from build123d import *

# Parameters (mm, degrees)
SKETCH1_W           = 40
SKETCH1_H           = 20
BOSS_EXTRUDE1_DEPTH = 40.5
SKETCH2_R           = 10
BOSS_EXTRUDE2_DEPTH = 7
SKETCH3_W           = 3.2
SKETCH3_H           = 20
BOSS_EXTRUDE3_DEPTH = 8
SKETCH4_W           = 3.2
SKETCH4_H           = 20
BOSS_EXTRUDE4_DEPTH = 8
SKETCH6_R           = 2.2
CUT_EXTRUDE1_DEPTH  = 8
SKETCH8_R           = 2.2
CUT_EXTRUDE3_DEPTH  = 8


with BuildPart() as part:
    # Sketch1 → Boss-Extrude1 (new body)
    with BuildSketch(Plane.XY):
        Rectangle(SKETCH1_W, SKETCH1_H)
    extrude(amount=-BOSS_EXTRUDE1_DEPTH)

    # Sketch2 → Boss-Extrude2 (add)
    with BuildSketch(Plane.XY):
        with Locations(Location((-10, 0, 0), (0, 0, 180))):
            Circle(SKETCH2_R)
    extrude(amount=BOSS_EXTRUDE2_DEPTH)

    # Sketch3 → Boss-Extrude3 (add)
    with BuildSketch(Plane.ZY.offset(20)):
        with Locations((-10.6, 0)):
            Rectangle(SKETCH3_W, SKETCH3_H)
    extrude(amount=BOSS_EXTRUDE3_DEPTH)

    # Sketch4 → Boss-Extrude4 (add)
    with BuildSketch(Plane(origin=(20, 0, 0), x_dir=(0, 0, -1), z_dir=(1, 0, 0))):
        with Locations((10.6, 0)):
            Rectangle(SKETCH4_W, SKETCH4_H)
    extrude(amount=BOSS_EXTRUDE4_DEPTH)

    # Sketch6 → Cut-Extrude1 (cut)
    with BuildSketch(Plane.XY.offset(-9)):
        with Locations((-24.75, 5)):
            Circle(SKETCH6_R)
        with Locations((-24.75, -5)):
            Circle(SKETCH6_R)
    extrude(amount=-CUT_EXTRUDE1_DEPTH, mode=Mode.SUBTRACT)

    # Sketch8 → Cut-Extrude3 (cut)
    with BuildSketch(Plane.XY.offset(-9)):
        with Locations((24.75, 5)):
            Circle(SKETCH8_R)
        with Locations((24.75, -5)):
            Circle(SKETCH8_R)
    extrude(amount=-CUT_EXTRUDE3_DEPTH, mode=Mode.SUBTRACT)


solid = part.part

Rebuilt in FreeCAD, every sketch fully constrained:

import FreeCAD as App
import Part
import Sketcher
from FreeCAD import Vector
Q = App.Units.Quantity


def add_polygon(sketch, points):
    """Adds a closed chain of lines whose ends are joined by coincident constraints."""
    first, n = sketch.GeometryCount, len(points)
    for a, b in zip(points, points[1:] + points[:1]):
        sketch.addGeometry(Part.LineSegment(App.Vector(*a, 0), App.Vector(*b, 0)), False)
    for i in range(n):
        sketch.addConstraint(Sketcher.Constraint("Coincident", first + i, 2, first + (i + 1) % n, 1))

doc = App.newDocument("Part")
body = doc.addObject("PartDesign::Body", "Body")

sketch1 = body.newObject("Sketcher::SketchObject", "Sketch")
sketch1.AttachmentSupport = (doc.getObject("XY_Plane"), [""])
sketch1.MapMode = "FlatFace"
add_polygon(sketch1, [(-20, 10), (-20, -10), (20, -10), (20, 10)])
sketch1.addConstraint(Sketcher.Constraint("Vertical", 0))
sketch1.addConstraint(Sketcher.Constraint("Horizontal", 1))
sketch1.addConstraint(Sketcher.Constraint("Vertical", 2))
sketch1.addConstraint(Sketcher.Constraint("Horizontal", 3))
sketch1.addConstraint(Sketcher.Constraint("Symmetric", 0, 2, 2, 2, -1, 1))
sketch1.addConstraint(Sketcher.Constraint("DistanceX", 1, 1, 1, 2, Q("40 mm")))
sketch1.addConstraint(Sketcher.Constraint("DistanceY", 0, 2, 0, 1, Q("20 mm")))
pad1 = body.newObject("PartDesign::Pad", "Pad")
pad1.Profile = sketch1
pad1.Length = 40.5
pad1.Reversed = True

sketch2 = body.newObject("Sketcher::SketchObject", "Sketch001")
sketch2.AttachmentSupport = (doc.getObject("XY_Plane"), [""])
sketch2.MapMode = "FlatFace"
sketch2.addGeometry(Part.Circle(Vector(-10, 0, 0), Vector(0, 0, 1), 10), False)
sketch2.addConstraint(Sketcher.Constraint("PointOnObject", 0, 3, -1))
sketch2.addConstraint(Sketcher.Constraint("Diameter", 0, Q("20 mm")))
sketch2.addConstraint(Sketcher.Constraint("DistanceX", 0, 3, -1, 1, Q("10 mm")))
pad2 = body.newObject("PartDesign::Pad", "Pad001")
pad2.Profile = sketch2
pad2.Length = 7

sketch3 = body.newObject("Sketcher::SketchObject", "Sketch002")
sketch3.AttachmentSupport = (doc.getObject("YZ_Plane"), [""])
sketch3.MapMode = "FlatFace"
sketch3.AttachmentOffset = App.Placement(Vector(0, 0, -20), App.Rotation())
add_polygon(sketch3, [(10, -12.2), (-10, -12.2), (-10, -9), (10, -9)])
sketch3.addConstraint(Sketcher.Constraint("Horizontal", 0))
sketch3.addConstraint(Sketcher.Constraint("Vertical", 1))
sketch3.addConstraint(Sketcher.Constraint("Horizontal", 2))
sketch3.addConstraint(Sketcher.Constraint("Vertical", 3))
sketch3.addConstraint(Sketcher.Constraint("DistanceX", 0, 2, 0, 1, Q("20 mm")))
sketch3.addConstraint(Sketcher.Constraint("DistanceY", 1, 1, 1, 2, Q("3.2 mm")))
sketch3.addConstraint(Sketcher.Constraint("DistanceX", 0, 2, -1, 1, Q("10 mm")))
sketch3.addConstraint(Sketcher.Constraint("DistanceY", 1, 2, -1, 1, Q("9 mm")))
pad3 = body.newObject("PartDesign::Pad", "Pad002")
pad3.Profile = sketch3
pad3.Length = 8
pad3.Reversed = True

sketch4 = body.newObject("Sketcher::SketchObject", "Sketch003")
sketch4.AttachmentSupport = (doc.getObject("YZ_Plane"), [""])
sketch4.MapMode = "FlatFace"
sketch4.AttachmentOffset = App.Placement(Vector(0, 0, 20), App.Rotation())
add_polygon(sketch4, [(10, -9), (-10, -9), (-10, -12.2), (10, -12.2)])
sketch4.addConstraint(Sketcher.Constraint("Horizontal", 0))
sketch4.addConstraint(Sketcher.Constraint("Vertical", 1))
sketch4.addConstraint(Sketcher.Constraint("Horizontal", 2))
sketch4.addConstraint(Sketcher.Constraint("Vertical", 3))
sketch4.addConstraint(Sketcher.Constraint("DistanceX", 0, 2, 0, 1, Q("20 mm")))
sketch4.addConstraint(Sketcher.Constraint("DistanceY", 1, 2, 1, 1, Q("3.2 mm")))
sketch4.addConstraint(Sketcher.Constraint("DistanceX", 0, 2, -1, 1, Q("10 mm")))
sketch4.addConstraint(Sketcher.Constraint("DistanceY", 0, 2, -1, 1, Q("9 mm")))
pad4 = body.newObject("PartDesign::Pad", "Pad003")
pad4.Profile = sketch4
pad4.Length = 8

sketch5 = body.newObject("Sketcher::SketchObject", "Sketch004")
sketch5.AttachmentSupport = (doc.getObject("XY_Plane"), [""])
sketch5.MapMode = "FlatFace"
sketch5.AttachmentOffset = App.Placement(Vector(0, 0, -9), App.Rotation())
sketch5.addGeometry(Part.Circle(Vector(-24.8, 5, 0), Vector(0, 0, 1), 2.2), False)
sketch5.addGeometry(Part.Circle(Vector(-24.8, -5, 0), Vector(0, 0, 1), 2.2), False)
sketch5.addConstraint(Sketcher.Constraint("Equal", 0, 1))
sketch5.addConstraint(Sketcher.Constraint("Symmetric", 0, 3, 1, 3, -1))
sketch5.addConstraint(Sketcher.Constraint("Diameter", 0, Q("4.4 mm")))
sketch5.addConstraint(Sketcher.Constraint("DistanceY", -1, 1, 0, 3, Q("5 mm")))
sketch5.addConstraint(Sketcher.Constraint("DistanceX", 0, 3, -1, 1, Q("24.75 mm")))
pocket1 = body.newObject("PartDesign::Pocket", "Pocket")
pocket1.Profile = sketch5
pocket1.Length = 8

sketch6 = body.newObject("Sketcher::SketchObject", "Sketch005")
sketch6.AttachmentSupport = (doc.getObject("XY_Plane"), [""])
sketch6.MapMode = "FlatFace"
sketch6.AttachmentOffset = App.Placement(Vector(0, 0, -9), App.Rotation())
sketch6.addGeometry(Part.Circle(Vector(24.8, 5, 0), Vector(0, 0, 1), 2.2), False)
sketch6.addGeometry(Part.Circle(Vector(24.8, -5, 0), Vector(0, 0, 1), 2.2), False)
sketch6.addConstraint(Sketcher.Constraint("Equal", 0, 1))
sketch6.addConstraint(Sketcher.Constraint("Symmetric", 0, 3, 1, 3, -1))
sketch6.addConstraint(Sketcher.Constraint("Diameter", 0, Q("4.4 mm")))
sketch6.addConstraint(Sketcher.Constraint("DistanceY", -1, 1, 0, 3, Q("5 mm")))
sketch6.addConstraint(Sketcher.Constraint("DistanceX", -1, 1, 0, 3, Q("24.75 mm")))
pocket2 = body.newObject("PartDesign::Pocket", "Pocket001")
pocket2.Profile = sketch6
pocket2.Length = 8

doc.recompute()
